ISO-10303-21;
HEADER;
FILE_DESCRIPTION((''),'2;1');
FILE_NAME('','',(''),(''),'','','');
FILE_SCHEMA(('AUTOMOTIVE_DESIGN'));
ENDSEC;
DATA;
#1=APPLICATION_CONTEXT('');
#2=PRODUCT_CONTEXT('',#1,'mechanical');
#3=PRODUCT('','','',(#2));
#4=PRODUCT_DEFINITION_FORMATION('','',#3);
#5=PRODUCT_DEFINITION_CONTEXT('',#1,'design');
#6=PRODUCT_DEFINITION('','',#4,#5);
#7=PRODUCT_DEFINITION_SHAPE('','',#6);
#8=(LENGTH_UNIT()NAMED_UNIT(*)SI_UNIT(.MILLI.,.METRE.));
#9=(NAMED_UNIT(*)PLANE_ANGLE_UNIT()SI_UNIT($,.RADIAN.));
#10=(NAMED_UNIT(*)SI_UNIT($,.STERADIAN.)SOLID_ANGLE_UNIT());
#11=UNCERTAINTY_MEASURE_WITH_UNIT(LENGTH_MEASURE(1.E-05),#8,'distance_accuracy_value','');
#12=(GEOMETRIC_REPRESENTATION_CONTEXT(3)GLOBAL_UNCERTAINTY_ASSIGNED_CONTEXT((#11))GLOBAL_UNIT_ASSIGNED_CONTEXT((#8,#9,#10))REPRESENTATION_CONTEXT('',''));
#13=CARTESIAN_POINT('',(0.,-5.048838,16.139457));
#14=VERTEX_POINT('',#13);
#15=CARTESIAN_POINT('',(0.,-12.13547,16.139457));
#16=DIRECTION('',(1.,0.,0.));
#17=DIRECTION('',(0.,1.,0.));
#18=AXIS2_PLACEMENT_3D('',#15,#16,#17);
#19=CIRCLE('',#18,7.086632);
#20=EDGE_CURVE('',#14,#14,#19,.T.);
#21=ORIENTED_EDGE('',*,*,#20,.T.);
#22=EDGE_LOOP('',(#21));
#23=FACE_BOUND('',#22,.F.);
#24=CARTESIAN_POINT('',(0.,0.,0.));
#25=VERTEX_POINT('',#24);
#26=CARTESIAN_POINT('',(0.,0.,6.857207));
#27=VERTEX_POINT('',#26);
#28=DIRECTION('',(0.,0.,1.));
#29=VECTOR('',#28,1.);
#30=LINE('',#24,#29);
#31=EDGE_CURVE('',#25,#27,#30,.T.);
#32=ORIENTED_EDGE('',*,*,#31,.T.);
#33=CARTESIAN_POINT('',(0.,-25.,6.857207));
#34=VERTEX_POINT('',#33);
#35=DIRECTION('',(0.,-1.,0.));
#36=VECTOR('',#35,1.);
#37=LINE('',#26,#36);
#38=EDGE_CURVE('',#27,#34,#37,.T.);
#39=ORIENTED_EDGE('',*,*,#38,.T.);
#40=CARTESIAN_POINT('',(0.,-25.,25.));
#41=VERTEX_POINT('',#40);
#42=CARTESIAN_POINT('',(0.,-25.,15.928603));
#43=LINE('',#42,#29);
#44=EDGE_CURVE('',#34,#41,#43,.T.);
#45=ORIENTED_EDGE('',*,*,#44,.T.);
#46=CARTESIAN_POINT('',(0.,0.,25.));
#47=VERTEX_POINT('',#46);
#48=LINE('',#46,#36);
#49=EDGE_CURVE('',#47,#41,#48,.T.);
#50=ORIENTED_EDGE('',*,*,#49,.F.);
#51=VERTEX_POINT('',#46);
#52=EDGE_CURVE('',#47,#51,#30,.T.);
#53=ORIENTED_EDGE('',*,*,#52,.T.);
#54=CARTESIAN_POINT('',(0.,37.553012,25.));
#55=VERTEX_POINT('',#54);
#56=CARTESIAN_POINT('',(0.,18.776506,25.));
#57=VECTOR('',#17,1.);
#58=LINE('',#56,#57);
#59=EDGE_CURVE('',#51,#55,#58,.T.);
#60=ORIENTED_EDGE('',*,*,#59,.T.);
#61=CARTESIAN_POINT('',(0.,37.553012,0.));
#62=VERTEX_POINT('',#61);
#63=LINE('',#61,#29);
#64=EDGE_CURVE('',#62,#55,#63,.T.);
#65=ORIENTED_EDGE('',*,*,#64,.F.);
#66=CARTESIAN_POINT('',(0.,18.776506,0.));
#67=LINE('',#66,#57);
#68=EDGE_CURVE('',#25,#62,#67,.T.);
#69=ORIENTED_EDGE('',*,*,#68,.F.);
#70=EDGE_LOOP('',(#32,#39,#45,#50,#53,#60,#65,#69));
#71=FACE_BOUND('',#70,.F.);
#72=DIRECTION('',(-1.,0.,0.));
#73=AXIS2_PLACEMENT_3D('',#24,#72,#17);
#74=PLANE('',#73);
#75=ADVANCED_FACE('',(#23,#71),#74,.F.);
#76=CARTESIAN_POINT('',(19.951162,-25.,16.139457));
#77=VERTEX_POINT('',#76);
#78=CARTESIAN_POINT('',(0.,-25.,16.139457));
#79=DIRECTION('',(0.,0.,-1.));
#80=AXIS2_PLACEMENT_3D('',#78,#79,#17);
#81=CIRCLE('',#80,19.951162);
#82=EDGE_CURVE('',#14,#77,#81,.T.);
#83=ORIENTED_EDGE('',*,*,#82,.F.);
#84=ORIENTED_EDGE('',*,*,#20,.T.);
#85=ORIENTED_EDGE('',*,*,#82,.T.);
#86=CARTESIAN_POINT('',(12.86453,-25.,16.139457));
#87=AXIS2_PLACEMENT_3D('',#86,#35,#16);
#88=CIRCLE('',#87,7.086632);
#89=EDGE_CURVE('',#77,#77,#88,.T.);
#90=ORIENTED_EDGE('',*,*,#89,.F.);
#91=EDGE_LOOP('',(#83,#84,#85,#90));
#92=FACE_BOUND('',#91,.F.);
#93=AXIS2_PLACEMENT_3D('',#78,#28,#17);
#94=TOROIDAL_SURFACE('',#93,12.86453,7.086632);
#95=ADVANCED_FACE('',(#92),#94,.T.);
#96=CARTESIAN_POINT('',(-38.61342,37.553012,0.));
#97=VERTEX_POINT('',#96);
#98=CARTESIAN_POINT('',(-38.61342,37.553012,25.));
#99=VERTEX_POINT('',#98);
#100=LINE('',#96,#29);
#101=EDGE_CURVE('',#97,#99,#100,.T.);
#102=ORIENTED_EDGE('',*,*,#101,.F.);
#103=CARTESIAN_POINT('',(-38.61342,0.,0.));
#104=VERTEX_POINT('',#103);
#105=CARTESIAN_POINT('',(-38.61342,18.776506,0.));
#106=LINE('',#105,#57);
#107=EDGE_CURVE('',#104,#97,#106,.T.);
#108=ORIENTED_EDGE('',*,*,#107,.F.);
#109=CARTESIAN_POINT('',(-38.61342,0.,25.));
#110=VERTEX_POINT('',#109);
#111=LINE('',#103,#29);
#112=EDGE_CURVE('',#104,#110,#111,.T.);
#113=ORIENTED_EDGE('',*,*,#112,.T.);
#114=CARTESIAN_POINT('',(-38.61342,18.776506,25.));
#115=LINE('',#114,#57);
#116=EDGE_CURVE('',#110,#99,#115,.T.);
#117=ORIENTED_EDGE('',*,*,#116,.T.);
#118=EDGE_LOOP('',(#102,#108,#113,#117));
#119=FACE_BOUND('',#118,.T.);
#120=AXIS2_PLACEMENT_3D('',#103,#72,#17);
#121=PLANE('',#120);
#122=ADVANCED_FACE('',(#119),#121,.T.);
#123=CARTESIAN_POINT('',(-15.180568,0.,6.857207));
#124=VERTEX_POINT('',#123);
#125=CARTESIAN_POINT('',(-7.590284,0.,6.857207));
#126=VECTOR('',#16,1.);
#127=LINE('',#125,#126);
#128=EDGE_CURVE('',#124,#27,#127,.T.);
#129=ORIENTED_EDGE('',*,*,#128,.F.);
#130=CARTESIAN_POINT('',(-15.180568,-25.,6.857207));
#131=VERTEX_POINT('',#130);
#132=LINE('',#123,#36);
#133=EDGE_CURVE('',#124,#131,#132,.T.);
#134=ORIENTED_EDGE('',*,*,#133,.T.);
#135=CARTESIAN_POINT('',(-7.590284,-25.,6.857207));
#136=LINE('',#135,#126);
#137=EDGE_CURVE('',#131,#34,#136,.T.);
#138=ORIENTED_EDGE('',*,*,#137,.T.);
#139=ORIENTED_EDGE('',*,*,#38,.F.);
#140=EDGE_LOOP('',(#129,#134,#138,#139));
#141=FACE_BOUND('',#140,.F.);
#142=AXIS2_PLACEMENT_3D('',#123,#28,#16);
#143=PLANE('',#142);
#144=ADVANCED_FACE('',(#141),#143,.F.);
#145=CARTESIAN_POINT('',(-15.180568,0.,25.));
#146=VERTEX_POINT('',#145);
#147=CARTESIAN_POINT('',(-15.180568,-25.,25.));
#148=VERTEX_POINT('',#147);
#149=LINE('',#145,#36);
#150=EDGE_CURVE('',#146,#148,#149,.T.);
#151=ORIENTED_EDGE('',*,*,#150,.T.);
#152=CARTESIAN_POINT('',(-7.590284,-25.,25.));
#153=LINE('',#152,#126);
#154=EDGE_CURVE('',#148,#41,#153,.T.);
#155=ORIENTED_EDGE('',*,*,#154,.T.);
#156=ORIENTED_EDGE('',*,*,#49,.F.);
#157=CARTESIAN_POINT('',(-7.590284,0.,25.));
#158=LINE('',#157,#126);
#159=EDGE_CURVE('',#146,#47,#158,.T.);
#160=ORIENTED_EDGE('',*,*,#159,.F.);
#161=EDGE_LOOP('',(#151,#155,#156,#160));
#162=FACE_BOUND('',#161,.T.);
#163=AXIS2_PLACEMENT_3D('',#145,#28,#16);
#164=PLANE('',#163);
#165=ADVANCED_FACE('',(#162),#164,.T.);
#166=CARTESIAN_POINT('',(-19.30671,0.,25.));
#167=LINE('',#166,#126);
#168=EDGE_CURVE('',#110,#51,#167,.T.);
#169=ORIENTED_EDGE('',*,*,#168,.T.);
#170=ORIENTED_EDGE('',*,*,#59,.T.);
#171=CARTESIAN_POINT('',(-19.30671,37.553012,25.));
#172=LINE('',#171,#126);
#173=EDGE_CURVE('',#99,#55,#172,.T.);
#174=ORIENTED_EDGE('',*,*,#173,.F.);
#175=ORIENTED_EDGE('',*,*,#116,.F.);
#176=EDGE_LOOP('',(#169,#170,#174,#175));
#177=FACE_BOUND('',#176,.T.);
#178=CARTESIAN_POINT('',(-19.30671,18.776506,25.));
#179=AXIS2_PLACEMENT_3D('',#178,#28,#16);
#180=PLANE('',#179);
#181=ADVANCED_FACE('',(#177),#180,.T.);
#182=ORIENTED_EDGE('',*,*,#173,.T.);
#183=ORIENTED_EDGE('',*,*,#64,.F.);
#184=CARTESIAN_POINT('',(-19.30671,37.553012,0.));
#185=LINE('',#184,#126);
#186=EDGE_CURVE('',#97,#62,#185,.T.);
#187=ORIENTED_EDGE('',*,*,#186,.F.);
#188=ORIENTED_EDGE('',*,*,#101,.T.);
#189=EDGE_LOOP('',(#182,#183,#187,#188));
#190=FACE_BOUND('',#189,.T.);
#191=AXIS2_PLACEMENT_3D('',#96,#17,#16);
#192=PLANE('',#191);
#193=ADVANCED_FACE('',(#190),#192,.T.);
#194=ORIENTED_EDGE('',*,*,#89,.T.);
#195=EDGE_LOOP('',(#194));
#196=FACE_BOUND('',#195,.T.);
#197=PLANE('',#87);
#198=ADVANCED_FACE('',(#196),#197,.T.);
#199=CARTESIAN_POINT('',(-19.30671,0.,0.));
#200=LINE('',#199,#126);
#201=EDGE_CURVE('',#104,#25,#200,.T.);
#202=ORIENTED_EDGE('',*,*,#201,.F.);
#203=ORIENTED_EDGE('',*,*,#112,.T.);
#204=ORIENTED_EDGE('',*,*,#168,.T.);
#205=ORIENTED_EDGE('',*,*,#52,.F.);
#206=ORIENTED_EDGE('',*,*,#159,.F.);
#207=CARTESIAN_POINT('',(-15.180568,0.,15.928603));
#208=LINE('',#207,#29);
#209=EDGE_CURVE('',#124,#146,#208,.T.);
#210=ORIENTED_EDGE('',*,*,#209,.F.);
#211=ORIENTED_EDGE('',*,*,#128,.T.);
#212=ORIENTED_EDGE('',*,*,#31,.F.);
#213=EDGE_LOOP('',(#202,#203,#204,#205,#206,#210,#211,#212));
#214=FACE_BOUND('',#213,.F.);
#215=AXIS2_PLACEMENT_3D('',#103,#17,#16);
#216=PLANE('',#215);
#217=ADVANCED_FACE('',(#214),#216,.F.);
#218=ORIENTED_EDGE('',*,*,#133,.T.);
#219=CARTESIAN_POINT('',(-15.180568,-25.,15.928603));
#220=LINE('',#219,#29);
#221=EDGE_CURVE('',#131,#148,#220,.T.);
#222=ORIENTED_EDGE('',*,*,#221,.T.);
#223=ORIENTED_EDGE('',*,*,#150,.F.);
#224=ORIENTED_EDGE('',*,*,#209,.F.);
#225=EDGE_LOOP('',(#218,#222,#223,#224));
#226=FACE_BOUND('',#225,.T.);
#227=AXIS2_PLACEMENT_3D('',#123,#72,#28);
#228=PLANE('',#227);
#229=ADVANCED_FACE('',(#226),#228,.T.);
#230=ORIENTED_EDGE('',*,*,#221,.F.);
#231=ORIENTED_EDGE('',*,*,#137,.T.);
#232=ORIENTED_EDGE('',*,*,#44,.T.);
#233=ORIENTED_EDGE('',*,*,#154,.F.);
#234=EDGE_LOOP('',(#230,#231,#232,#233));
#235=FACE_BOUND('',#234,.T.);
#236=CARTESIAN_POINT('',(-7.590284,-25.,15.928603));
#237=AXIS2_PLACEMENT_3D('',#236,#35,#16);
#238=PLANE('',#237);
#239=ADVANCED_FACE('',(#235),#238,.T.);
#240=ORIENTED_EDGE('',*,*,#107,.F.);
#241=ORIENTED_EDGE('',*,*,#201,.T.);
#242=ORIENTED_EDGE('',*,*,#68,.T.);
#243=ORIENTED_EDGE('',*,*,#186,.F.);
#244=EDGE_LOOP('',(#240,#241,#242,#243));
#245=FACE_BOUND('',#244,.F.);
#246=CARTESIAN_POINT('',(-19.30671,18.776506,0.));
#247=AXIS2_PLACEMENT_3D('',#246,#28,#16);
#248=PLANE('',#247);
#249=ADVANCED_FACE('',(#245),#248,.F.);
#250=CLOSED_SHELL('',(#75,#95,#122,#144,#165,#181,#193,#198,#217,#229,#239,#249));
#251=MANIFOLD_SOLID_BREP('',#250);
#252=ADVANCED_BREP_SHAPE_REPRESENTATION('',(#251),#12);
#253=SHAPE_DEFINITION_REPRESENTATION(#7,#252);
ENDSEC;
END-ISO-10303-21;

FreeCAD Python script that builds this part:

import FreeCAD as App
import Part
import Sketcher
from FreeCAD import Vector


def add_polygon(sketch, points):
    """Adds a closed chain of lines whose ends are joined by coincident constraints."""
    first, n = sketch.GeometryCount, len(points)
    for a, b in zip(points, points[1:] + points[:1]):
        sketch.addGeometry(Part.LineSegment(App.Vector(*a, 0), App.Vector(*b, 0)), False)
    for i in range(n):
        sketch.addConstraint(Sketcher.Constraint("Coincident", first + i, 2, first + (i + 1) % n, 1))

doc = App.newDocument("Part")
params = doc.addObject("Spreadsheet::Sheet", "Params")
for row, (alias, value) in enumerate([
    ("pad1_length", "25 mm"),
    ("pad2_length", "25 mm"),
    ("sketch3_height", "10 mm"),
    ("revolution_angle", "90 deg"),
], start=1):
    params.set(f"A{row}", alias)
    params.set(f"B{row}", "=" + value)
    params.setAlias(f"B{row}", alias)

body = doc.addObject("PartDesign::Body", "Body")

# Sketch on XY plane
sketch1 = doc.addObject("Sketcher::SketchObject", "Sketch")
body.addObject(sketch1)
sketch1.AttachmentSupport = (doc.XY_Plane, [""])
sketch1.MapMode = "FlatFace"
add_polygon(sketch1, [(-39, 38), (-39, 0), (0, 0), (0, 38)])  # lines 0-3
sketch1.addConstraint([
    Sketcher.Constraint("Vertical", 0),
    Sketcher.Constraint("Horizontal", 1),
    Sketcher.Constraint("Vertical", 2),
    Sketcher.Constraint("Horizontal", 3),
    Sketcher.Constraint("Coincident", 1, 2, -1, 1),
    Sketcher.Constraint("DistanceX", 1, 1, 1, 2, 38.61342),
    Sketcher.Constraint("DistanceY", 0, 2, 0, 1, 37.553012),
])
pad1 = doc.addObject("PartDesign::Pad", "Pad")
body.addObject(pad1)
pad1.Profile = sketch1
pad1.setExpression("Length", "Params.pad1_length")

# Sketch on XZ plane
sketch2 = doc.addObject("Sketcher::SketchObject", "Sketch001")
body.addObject(sketch2)
sketch2.AttachmentSupport = (doc.XZ_Plane, [""])
sketch2.MapMode = "FlatFace"
add_polygon(sketch2, [(-15, 25), (-15, 7), (0, 7), (0, 25)])  # lines 0-3
sketch2.addConstraint([
    Sketcher.Constraint("Vertical", 0),
    Sketcher.Constraint("Horizontal", 1),
    Sketcher.Constraint("Vertical", 2),
    Sketcher.Constraint("Horizontal", 3),
    Sketcher.Constraint("PointOnObject", 1, 2, -2),
    Sketcher.Constraint("DistanceY", -1, 1, 2, 2, 25.0),
    Sketcher.Constraint("DistanceX", 1, 1, 1, 2, 15.180568),
    Sketcher.Constraint("DistanceY", 0, 2, 0, 1, 18.142793),
])
pad2 = doc.addObject("PartDesign::Pad", "Pad001")
body.addObject(pad2)
pad2.Profile = sketch2
pad2.setExpression("Length", "Params.pad2_length")

# Sketch on YZ plane
sketch3 = doc.addObject("Sketcher::SketchObject", "Sketch002")
body.addObject(sketch3)
sketch3.AttachmentSupport = (doc.YZ_Plane, [""])
sketch3.MapMode = "FlatFace"
sketch3.addGeometry(Part.Circle(Vector(-12, 16, 0), Vector(0, 0, 1), 7), False)
sketch3.addGeometry(Part.LineSegment(Vector(-25, 16, 0), Vector(-25, 6, 0)), True)  # axis
sketch3.addConstraint([
    Sketcher.Constraint("Vertical", 1),
    Sketcher.Constraint("Horizontal", 0, 3, 1, 1),
    Sketcher.Constraint("DistanceY", 1, 2, 1, 1, 10.0),
    Sketcher.Constraint("DistanceX", 1, 1, -1, 1, 25.0),
    Sketcher.Constraint("Diameter", 0, 14.173264),
    Sketcher.Constraint("DistanceX", 0, 3, -1, 1, 12.13547),
    Sketcher.Constraint("DistanceY", -1, 1, 0, 3, 16.139457),
])
sketch3.setExpression("Constraints[2]", "Params.sketch3_height")
revolution = doc.addObject("PartDesign::Revolution", "Revolution")
body.addObject(revolution)
revolution.Profile = sketch3
revolution.ReferenceAxis = (sketch3, ["Axis0"])
revolution.setExpression("Angle", "Params.revolution_angle")

doc.recompute()
